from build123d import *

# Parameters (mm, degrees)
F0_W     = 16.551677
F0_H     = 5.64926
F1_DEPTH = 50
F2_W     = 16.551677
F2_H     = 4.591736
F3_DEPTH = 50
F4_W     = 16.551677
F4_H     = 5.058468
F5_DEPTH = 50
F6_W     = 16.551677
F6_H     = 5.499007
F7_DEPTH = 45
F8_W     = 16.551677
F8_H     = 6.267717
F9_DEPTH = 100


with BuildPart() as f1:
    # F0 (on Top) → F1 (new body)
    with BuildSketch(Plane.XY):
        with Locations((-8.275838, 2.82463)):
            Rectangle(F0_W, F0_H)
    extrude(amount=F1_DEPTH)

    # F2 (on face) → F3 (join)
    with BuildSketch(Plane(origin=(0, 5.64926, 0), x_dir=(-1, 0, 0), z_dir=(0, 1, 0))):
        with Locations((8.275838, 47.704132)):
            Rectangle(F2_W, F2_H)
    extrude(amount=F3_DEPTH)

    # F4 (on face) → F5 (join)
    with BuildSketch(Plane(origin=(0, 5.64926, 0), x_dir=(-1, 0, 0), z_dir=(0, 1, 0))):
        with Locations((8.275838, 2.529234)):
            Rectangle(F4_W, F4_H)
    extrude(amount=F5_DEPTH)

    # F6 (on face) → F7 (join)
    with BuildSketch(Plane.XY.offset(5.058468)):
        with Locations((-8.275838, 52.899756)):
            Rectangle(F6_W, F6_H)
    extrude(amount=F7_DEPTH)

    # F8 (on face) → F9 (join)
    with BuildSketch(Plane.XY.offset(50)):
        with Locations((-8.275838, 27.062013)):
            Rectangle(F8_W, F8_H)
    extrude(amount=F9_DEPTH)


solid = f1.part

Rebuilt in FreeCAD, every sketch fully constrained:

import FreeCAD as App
import Part
import Sketcher
Q = App.Units.Quantity


def add_polygon(sketch, points):
    """Adds a closed chain of lines whose ends are joined by coincident constraints."""
    first, n = sketch.GeometryCount, len(points)
    for a, b in zip(points, points[1:] + points[:1]):
        sketch.addGeometry(Part.LineSegment(App.Vector(*a, 0), App.Vector(*b, 0)), False)
    for i in range(n):
        sketch.addConstraint(Sketcher.Constraint("Coincident", first + i, 2, first + (i + 1) % n, 1))

doc = App.newDocument("Part")
body = doc.addObject("PartDesign::Body", "Body")

# Sketch on XY plane
sketch1 = body.newObject("Sketcher::SketchObject", "Sketch")
sketch1.AttachmentSupport = (doc.getObject("XY_Plane"), [""])
sketch1.MapMode = "FlatFace"
add_polygon(sketch1, [(-17, 6), (-17, 0), (0, 0), (0, 6)])  # lines 0-3
sketch1.addConstraint([
    Sketcher.Constraint("Vertical", 0),
    Sketcher.Constraint("Horizontal", 1),
    Sketcher.Constraint("Vertical", 2),
    Sketcher.Constraint("Horizontal", 3),
    Sketcher.Constraint("Coincident", 1, 2, -1, 1),
    Sketcher.Constraint("DistanceY", 0, 2, 0, 1, Q("5.64926 mm")),
    Sketcher.Constraint("DistanceX", 1, 1, 1, 2, Q("16.551677 mm")),
])
pad1 = body.newObject("PartDesign::Pad", "Pad")
pad1.Profile = sketch1
pad1.Length = 50

# Sketch on XZ plane
sketch2 = body.newObject("Sketcher::SketchObject", "Sketch001")
sketch2.AttachmentSupport = (doc.getObject("XZ_Plane"), [""])
sketch2.MapMode = "FlatFace"
sketch2.AttachmentOffset = App.Placement(App.Vector(0, 0, -5.64926), App.Rotation())
add_polygon(sketch2, [(0, 50), (0, 45.4), (-16.6, 45.4), (-16.6, 50)])  # lines 0-3
sketch2.addConstraint([
    Sketcher.Constraint("Vertical", 0),
    Sketcher.Constraint("Horizontal", 1),
    Sketcher.Constraint("Vertical", 2),
    Sketcher.Constraint("Horizontal", 3),
    Sketcher.Constraint("PointOnObject", 0, 2, -2),
    Sketcher.Constraint("DistanceY", -1, 1, 2, 2, Q("50 mm")),
    Sketcher.Constraint("DistanceX", 1, 2, 1, 1, Q("16.551677 mm")),
    Sketcher.Constraint("DistanceY", 0, 2, 0, 1, Q("4.591736 mm")),
])
pad2 = body.newObject("PartDesign::Pad", "Pad001")
pad2.Profile = sketch2
pad2.Length = 50
pad2.Reversed = True

# Sketch on XZ plane
sketch3 = body.newObject("Sketcher::SketchObject", "Sketch002")
sketch3.AttachmentSupport = (doc.getObject("XZ_Plane"), [""])
sketch3.MapMode = "FlatFace"
sketch3.AttachmentOffset = App.Placement(App.Vector(0, 0, -5.64926), App.Rotation())
add_polygon(sketch3, [(0, 5), (0, 0), (-17, 0), (-17, 5)])  # lines 0-3
sketch3.addConstraint([
    Sketcher.Constraint("Vertical", 0),
    Sketcher.Constraint("Horizontal", 1),
    Sketcher.Constraint("Vertical", 2),
    Sketcher.Constraint("Horizontal", 3),
    Sketcher.Constraint("Coincident", 0, 2, -1, 1),
    Sketcher.Constraint("DistanceY", 0, 2, 0, 1, Q("5.058468 mm")),
    Sketcher.Constraint("DistanceX", 1, 2, 1, 1, Q("16.551677 mm")),
])
pad3 = body.newObject("PartDesign::Pad", "Pad002")
pad3.Profile = sketch3
pad3.Length = 50
pad3.Reversed = True

# Sketch on XY plane
sketch4 = body.newObject("Sketcher::SketchObject", "Sketch003")
sketch4.AttachmentSupport = (doc.getObject("XY_Plane"), [""])
sketch4.MapMode = "FlatFace"
sketch4.AttachmentOffset = App.Placement(App.Vector(0, 0, 5.058468), App.Rotation())
add_polygon(sketch4, [(-17, 56), (-17, 50), (0, 50), (0, 56)])  # lines 0-3
sketch4.addConstraint([
    Sketcher.Constraint("Vertical", 0),
    Sketcher.Constraint("Horizontal", 1),
    Sketcher.Constraint("Vertical", 2),
    Sketcher.Constraint("Horizontal", 3),
    Sketcher.Constraint("PointOnObject", 1, 2, -2),
    Sketcher.Constraint("DistanceX", 1, 1, 1, 2, Q("16.551677 mm")),
    Sketcher.Constraint("DistanceY", 0, 2, 0, 1, Q("5.499007 mm")),
    Sketcher.Constraint("DistanceY", -1, 1, 2, 2, Q("55.649259 mm")),
])
pad4 = body.newObject("PartDesign::Pad", "Pad003")
pad4.Profile = sketch4
pad4.Length = 45

# Sketch on XY plane
sketch5 = body.newObject("Sketcher::SketchObject", "Sketch004")
sketch5.AttachmentSupport = (doc.getObject("XY_Plane"), [""])
sketch5.MapMode = "FlatFace"
sketch5.AttachmentOffset = App.Placement(App.Vector(0, 0, 50), App.Rotation())
add_polygon(sketch5, [(-17, 30), (-17, 24), (0, 24), (0, 30)])  # lines 0-3
sketch5.addConstraint([
    Sketcher.Constraint("Vertical", 0),
    Sketcher.Constraint("Horizontal", 1),
    Sketcher.Constraint("Vertical", 2),
    Sketcher.Constraint("Horizontal", 3),
    Sketcher.Constraint("PointOnObject", 1, 2, -2),
    Sketcher.Constraint("DistanceX", 1, 1, 1, 2, Q("16.551677 mm")),
    Sketcher.Constraint("DistanceY", 0, 2, 0, 1, Q("6.267717 mm")),
    Sketcher.Constraint("DistanceY", -1, 1, 2, 2, Q("30.195871 mm")),
])
pad5 = body.newObject("PartDesign::Pad", "Pad004")
pad5.Profile = sketch5
pad5.Length = 100

doc.recompute()
